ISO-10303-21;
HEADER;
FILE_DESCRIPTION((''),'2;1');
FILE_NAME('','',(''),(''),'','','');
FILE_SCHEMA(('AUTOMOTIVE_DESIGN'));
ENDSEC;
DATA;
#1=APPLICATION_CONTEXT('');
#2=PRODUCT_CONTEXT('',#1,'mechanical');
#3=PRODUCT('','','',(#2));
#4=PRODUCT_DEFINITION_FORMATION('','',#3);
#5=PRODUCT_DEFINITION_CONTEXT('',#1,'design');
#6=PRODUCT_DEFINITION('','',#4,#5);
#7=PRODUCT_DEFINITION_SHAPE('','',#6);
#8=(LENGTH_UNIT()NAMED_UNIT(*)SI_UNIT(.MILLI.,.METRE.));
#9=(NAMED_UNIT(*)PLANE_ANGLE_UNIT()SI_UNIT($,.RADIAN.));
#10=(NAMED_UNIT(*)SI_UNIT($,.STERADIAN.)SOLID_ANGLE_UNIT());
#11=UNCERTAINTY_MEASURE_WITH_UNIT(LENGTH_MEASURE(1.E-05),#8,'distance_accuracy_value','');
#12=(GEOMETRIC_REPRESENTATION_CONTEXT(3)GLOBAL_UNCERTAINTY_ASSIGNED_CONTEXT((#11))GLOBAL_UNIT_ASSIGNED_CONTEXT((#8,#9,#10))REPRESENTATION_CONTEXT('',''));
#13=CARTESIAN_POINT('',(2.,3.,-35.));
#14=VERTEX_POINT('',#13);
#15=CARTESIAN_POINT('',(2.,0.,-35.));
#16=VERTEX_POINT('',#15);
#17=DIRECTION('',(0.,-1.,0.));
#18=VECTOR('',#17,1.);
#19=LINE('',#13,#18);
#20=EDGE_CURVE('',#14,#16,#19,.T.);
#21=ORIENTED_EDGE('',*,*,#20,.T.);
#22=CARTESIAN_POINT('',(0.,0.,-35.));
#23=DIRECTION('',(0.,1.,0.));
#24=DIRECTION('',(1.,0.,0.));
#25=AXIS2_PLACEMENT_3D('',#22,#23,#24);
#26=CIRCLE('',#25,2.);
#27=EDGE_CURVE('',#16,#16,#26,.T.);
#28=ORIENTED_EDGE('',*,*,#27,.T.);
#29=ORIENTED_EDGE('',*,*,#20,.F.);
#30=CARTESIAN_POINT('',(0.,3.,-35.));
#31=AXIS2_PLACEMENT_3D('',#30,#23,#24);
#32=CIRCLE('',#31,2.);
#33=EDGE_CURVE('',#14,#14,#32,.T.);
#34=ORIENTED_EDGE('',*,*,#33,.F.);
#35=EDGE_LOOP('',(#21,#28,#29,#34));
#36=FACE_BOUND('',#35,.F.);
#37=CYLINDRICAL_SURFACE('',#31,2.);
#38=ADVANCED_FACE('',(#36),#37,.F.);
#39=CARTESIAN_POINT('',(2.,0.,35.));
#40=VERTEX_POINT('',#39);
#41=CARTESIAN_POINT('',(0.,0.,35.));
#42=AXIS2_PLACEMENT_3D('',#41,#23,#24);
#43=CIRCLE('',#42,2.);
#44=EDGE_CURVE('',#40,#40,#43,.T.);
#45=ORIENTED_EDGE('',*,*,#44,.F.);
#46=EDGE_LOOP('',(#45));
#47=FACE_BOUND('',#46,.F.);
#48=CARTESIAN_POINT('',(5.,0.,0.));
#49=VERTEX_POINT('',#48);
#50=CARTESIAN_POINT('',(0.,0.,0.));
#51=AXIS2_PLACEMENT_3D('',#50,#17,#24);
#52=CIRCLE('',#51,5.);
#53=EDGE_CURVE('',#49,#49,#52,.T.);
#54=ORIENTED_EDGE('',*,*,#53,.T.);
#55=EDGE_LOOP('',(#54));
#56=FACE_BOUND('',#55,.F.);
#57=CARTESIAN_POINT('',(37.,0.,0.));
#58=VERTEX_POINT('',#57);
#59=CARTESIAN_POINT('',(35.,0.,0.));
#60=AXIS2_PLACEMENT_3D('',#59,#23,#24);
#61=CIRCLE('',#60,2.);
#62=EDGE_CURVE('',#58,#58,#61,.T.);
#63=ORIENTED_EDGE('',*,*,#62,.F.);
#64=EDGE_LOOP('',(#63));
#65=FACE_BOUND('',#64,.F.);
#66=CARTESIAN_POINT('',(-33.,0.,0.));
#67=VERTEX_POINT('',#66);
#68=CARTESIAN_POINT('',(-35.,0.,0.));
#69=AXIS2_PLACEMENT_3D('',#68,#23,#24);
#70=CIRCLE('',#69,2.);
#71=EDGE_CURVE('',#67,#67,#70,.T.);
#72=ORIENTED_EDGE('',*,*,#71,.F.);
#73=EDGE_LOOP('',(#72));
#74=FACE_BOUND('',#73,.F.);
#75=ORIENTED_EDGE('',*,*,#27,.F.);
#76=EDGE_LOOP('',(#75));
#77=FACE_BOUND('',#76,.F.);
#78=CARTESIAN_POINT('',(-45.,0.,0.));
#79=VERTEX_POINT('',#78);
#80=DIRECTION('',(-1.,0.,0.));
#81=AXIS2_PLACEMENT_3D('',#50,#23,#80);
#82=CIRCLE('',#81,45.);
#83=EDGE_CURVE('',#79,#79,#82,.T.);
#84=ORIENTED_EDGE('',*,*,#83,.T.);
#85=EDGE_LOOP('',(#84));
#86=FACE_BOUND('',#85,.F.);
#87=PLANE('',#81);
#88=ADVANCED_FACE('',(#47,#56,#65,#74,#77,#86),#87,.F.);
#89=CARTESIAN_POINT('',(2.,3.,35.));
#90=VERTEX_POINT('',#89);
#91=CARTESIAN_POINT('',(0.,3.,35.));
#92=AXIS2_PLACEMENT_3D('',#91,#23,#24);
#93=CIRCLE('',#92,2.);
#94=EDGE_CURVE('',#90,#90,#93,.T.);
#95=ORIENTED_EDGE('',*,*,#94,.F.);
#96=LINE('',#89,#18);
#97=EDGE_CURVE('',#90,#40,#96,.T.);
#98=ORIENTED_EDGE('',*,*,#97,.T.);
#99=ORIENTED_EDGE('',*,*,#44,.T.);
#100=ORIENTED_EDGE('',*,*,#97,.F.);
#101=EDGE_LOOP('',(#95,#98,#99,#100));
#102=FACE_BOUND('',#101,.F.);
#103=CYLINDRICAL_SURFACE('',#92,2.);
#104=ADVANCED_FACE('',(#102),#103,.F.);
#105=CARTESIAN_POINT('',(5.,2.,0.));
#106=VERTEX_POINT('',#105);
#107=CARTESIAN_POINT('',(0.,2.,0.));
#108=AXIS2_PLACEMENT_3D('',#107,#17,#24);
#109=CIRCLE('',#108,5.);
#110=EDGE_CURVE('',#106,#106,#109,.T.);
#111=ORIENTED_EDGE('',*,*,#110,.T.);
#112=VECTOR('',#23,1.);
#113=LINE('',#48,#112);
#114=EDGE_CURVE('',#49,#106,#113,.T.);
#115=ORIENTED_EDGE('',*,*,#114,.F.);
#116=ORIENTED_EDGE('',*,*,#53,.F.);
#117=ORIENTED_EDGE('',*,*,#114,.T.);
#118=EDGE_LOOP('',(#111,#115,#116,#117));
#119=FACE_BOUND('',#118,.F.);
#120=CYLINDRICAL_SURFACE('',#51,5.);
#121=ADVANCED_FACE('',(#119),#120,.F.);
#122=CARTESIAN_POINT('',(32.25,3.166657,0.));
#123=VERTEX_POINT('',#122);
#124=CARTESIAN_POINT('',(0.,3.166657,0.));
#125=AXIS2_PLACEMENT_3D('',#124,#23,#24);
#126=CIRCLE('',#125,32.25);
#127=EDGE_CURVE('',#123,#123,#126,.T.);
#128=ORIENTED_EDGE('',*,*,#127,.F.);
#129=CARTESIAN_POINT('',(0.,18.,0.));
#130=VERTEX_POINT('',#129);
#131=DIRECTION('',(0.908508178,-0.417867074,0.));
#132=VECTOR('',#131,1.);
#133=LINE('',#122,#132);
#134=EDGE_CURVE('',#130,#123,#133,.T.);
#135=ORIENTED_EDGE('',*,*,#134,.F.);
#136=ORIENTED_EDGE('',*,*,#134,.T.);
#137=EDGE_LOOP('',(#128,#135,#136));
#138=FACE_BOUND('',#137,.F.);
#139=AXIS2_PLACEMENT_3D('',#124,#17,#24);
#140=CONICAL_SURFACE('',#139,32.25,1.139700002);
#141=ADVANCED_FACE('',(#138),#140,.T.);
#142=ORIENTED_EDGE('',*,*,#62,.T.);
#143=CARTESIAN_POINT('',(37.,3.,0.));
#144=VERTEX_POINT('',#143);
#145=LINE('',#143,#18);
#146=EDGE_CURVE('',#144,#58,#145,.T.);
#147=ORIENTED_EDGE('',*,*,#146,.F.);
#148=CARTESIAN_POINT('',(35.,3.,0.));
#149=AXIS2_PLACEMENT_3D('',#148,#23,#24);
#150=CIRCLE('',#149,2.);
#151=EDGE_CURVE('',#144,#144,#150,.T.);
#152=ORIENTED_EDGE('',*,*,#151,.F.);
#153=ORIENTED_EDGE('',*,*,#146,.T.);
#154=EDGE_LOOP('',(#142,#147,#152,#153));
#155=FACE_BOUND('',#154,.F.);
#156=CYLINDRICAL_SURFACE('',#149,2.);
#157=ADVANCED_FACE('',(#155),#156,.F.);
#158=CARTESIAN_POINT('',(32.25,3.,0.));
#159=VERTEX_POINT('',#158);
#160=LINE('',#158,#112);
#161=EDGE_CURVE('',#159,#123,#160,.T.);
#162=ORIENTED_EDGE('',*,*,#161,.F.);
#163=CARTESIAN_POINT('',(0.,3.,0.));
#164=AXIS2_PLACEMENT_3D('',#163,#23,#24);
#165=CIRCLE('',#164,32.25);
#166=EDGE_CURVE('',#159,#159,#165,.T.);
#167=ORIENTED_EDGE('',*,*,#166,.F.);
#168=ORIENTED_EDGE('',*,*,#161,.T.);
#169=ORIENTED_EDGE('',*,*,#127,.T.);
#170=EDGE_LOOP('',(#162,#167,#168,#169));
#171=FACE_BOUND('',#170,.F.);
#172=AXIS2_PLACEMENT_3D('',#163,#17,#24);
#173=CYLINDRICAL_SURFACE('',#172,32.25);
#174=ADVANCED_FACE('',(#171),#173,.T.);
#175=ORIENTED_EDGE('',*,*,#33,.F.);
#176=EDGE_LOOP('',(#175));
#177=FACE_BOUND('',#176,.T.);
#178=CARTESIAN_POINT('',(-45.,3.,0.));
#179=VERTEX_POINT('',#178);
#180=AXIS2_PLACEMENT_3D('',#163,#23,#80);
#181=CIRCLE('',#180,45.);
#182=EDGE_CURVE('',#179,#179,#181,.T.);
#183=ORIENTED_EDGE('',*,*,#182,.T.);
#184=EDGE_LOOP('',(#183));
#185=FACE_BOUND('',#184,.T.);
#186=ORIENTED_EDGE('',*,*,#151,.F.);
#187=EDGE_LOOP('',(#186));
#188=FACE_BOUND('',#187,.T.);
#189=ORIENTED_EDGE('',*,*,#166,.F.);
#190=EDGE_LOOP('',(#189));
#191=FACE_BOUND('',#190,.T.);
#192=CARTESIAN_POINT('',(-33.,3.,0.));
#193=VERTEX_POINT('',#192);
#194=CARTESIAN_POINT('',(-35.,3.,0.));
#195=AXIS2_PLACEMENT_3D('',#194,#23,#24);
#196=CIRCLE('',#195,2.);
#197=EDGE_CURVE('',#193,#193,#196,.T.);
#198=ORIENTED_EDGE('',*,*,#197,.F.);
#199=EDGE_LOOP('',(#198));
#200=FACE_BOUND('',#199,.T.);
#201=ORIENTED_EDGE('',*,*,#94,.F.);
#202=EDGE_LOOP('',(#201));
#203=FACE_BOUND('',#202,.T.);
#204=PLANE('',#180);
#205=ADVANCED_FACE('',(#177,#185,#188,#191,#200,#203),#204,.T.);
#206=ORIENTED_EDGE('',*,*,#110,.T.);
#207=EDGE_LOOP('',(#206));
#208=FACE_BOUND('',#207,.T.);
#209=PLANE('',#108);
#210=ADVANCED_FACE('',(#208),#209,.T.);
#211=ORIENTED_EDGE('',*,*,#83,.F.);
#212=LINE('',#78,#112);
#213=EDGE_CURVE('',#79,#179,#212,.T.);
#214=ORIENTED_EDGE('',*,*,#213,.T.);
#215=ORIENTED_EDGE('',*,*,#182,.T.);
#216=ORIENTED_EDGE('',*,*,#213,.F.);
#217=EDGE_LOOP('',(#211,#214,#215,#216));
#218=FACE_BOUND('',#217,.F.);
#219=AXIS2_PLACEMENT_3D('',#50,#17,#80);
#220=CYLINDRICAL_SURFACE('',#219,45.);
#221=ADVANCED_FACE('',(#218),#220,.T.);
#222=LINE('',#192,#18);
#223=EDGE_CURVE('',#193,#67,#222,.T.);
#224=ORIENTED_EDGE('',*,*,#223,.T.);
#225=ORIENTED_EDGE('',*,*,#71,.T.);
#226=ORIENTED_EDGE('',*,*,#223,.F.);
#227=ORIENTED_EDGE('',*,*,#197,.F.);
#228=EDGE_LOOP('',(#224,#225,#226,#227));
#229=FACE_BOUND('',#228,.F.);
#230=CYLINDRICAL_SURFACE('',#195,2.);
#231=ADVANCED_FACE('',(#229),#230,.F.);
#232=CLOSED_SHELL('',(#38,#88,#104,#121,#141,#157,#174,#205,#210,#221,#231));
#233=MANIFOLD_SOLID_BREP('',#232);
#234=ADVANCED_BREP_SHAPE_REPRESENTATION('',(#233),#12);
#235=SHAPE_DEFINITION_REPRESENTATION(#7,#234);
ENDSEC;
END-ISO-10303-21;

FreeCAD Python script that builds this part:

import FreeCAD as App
import Part
import Sketcher
Q = App.Units.Quantity


def edges_at(feature, points):
    """Names of the edges that pass closest to the given points."""
    edges = feature.Shape.Edges
    near = lambda p: min(range(len(edges)), key=lambda i: edges[i].distToShape(Part.Vertex(*p))[0])
    return sorted({f"Edge{near(p) + 1}" for p in points})

doc = App.newDocument("Part")
body = doc.addObject("PartDesign::Body", "Body")

sketch1 = doc.addObject("Sketcher::SketchObject", "Sketch")
body.addObject(sketch1)
sketch1.AttachmentSupport = (doc.XZ_Plane, [""])
sketch1.MapMode = "FlatFace"
sketch1.addGeometry(Part.Circle(App.Vector(0, 0, 0), App.Vector(0, 0, 1), 45), False)
sketch1.addConstraint([
    Sketcher.Constraint("Coincident", 0, 3, -1, 1),
    Sketcher.Constraint("Diameter", 0, Q("90 mm")),
])
pad1 = doc.addObject("PartDesign::Pad", "Pad")
body.addObject(pad1)
pad1.Profile = sketch1
pad1.Length = 3
pad1.Reversed = True

sketch2 = doc.addObject("Sketcher::SketchObject", "Sketch001")
body.addObject(sketch2)
sketch2.AttachmentSupport = (doc.XZ_Plane, [""])
sketch2.MapMode = "FlatFace"
sketch2.addGeometry(Part.Circle(App.Vector(0, 0, 0), App.Vector(0, 0, 1), 5), False)
sketch2.addConstraint([
    Sketcher.Constraint("Coincident", 0, 3, -1, 1),
    Sketcher.Constraint("Diameter", 0, Q("10 mm")),
])
pocket1 = doc.addObject("PartDesign::Pocket", "Pocket")
body.addObject(pocket1)
pocket1.Profile = sketch2
pocket1.Length = 2

sketch3 = doc.addObject("Sketcher::SketchObject", "Sketch002")
body.addObject(sketch3)
sketch3.AttachmentSupport = (doc.XZ_Plane, [""])
sketch3.MapMode = "FlatFace"
sketch3.AttachmentOffset = App.Placement(App.Vector(0, 0, -3), App.Rotation())
sketch3.addGeometry([
    Part.Circle(App.Vector(-35, 0, 0), App.Vector(0, 0, 1), 2),
    Part.Circle(App.Vector(0, -35, 0), App.Vector(0, 0, 1), 2),
    Part.Circle(App.Vector(0, 35, 0), App.Vector(0, 0, 1), 2),
    Part.Circle(App.Vector(35, 0, 0), App.Vector(0, 0, 1), 2),
], False)
sketch3.addConstraint([
    Sketcher.Constraint("Equal", 0, 1),
    Sketcher.Constraint("Equal", 1, 2),
    Sketcher.Constraint("Equal", 2, 3),
    Sketcher.Constraint("Symmetric", 1, 3, 2, 3, -1, 1),
    Sketcher.Constraint("Symmetric", 0, 3, 3, 3, -1, 1),
    Sketcher.Constraint("PointOnObject", 0, 3, -1),
    Sketcher.Constraint("PointOnObject", 1, 3, -2),
    Sketcher.Constraint("Diameter", 0, Q("4 mm")),
    Sketcher.Constraint("DistanceX", 0, 3, -1, 1, Q("35 mm")),
    Sketcher.Constraint("DistanceY", 1, 3, -1, 1, Q("35 mm")),
])
pocket2 = doc.addObject("PartDesign::Pocket", "Pocket001")
body.addObject(pocket2)
pocket2.Profile = sketch3
pocket2.Length = 47
pocket2.Reversed = True

sketch4 = doc.addObject("Sketcher::SketchObject", "Sketch003")
body.addObject(sketch4)
sketch4.AttachmentSupport = (doc.XZ_Plane, [""])
sketch4.MapMode = "FlatFace"
sketch4.AttachmentOffset = App.Placement(App.Vector(0, 0, -3), App.Rotation())
sketch4.addGeometry(Part.Circle(App.Vector(0, 0, 0), App.Vector(0, 0, 1), 32), False)
sketch4.addConstraint([
    Sketcher.Constraint("Coincident", 0, 3, -1, 1),
    Sketcher.Constraint("Diameter", 0, Q("64.5 mm")),
])
pad2 = doc.addObject("PartDesign::Pad", "Pad001")
body.addObject(pad2)
pad2.Profile = sketch4
pad2.Length = 15
pad2.Reversed = True
doc.recompute()

chamfer = doc.addObject("PartDesign::Chamfer", "Chamfer")
body.addObject(chamfer)
chamfer.Base = (pad2, edges_at(pad2, [(-32.25, 18, 0)]))
chamfer.ChamferType = "Distance and Angle"
chamfer.Size = 32.25
chamfer.Angle = 24.7
chamfer.FlipDirection = True

doc.recompute()
